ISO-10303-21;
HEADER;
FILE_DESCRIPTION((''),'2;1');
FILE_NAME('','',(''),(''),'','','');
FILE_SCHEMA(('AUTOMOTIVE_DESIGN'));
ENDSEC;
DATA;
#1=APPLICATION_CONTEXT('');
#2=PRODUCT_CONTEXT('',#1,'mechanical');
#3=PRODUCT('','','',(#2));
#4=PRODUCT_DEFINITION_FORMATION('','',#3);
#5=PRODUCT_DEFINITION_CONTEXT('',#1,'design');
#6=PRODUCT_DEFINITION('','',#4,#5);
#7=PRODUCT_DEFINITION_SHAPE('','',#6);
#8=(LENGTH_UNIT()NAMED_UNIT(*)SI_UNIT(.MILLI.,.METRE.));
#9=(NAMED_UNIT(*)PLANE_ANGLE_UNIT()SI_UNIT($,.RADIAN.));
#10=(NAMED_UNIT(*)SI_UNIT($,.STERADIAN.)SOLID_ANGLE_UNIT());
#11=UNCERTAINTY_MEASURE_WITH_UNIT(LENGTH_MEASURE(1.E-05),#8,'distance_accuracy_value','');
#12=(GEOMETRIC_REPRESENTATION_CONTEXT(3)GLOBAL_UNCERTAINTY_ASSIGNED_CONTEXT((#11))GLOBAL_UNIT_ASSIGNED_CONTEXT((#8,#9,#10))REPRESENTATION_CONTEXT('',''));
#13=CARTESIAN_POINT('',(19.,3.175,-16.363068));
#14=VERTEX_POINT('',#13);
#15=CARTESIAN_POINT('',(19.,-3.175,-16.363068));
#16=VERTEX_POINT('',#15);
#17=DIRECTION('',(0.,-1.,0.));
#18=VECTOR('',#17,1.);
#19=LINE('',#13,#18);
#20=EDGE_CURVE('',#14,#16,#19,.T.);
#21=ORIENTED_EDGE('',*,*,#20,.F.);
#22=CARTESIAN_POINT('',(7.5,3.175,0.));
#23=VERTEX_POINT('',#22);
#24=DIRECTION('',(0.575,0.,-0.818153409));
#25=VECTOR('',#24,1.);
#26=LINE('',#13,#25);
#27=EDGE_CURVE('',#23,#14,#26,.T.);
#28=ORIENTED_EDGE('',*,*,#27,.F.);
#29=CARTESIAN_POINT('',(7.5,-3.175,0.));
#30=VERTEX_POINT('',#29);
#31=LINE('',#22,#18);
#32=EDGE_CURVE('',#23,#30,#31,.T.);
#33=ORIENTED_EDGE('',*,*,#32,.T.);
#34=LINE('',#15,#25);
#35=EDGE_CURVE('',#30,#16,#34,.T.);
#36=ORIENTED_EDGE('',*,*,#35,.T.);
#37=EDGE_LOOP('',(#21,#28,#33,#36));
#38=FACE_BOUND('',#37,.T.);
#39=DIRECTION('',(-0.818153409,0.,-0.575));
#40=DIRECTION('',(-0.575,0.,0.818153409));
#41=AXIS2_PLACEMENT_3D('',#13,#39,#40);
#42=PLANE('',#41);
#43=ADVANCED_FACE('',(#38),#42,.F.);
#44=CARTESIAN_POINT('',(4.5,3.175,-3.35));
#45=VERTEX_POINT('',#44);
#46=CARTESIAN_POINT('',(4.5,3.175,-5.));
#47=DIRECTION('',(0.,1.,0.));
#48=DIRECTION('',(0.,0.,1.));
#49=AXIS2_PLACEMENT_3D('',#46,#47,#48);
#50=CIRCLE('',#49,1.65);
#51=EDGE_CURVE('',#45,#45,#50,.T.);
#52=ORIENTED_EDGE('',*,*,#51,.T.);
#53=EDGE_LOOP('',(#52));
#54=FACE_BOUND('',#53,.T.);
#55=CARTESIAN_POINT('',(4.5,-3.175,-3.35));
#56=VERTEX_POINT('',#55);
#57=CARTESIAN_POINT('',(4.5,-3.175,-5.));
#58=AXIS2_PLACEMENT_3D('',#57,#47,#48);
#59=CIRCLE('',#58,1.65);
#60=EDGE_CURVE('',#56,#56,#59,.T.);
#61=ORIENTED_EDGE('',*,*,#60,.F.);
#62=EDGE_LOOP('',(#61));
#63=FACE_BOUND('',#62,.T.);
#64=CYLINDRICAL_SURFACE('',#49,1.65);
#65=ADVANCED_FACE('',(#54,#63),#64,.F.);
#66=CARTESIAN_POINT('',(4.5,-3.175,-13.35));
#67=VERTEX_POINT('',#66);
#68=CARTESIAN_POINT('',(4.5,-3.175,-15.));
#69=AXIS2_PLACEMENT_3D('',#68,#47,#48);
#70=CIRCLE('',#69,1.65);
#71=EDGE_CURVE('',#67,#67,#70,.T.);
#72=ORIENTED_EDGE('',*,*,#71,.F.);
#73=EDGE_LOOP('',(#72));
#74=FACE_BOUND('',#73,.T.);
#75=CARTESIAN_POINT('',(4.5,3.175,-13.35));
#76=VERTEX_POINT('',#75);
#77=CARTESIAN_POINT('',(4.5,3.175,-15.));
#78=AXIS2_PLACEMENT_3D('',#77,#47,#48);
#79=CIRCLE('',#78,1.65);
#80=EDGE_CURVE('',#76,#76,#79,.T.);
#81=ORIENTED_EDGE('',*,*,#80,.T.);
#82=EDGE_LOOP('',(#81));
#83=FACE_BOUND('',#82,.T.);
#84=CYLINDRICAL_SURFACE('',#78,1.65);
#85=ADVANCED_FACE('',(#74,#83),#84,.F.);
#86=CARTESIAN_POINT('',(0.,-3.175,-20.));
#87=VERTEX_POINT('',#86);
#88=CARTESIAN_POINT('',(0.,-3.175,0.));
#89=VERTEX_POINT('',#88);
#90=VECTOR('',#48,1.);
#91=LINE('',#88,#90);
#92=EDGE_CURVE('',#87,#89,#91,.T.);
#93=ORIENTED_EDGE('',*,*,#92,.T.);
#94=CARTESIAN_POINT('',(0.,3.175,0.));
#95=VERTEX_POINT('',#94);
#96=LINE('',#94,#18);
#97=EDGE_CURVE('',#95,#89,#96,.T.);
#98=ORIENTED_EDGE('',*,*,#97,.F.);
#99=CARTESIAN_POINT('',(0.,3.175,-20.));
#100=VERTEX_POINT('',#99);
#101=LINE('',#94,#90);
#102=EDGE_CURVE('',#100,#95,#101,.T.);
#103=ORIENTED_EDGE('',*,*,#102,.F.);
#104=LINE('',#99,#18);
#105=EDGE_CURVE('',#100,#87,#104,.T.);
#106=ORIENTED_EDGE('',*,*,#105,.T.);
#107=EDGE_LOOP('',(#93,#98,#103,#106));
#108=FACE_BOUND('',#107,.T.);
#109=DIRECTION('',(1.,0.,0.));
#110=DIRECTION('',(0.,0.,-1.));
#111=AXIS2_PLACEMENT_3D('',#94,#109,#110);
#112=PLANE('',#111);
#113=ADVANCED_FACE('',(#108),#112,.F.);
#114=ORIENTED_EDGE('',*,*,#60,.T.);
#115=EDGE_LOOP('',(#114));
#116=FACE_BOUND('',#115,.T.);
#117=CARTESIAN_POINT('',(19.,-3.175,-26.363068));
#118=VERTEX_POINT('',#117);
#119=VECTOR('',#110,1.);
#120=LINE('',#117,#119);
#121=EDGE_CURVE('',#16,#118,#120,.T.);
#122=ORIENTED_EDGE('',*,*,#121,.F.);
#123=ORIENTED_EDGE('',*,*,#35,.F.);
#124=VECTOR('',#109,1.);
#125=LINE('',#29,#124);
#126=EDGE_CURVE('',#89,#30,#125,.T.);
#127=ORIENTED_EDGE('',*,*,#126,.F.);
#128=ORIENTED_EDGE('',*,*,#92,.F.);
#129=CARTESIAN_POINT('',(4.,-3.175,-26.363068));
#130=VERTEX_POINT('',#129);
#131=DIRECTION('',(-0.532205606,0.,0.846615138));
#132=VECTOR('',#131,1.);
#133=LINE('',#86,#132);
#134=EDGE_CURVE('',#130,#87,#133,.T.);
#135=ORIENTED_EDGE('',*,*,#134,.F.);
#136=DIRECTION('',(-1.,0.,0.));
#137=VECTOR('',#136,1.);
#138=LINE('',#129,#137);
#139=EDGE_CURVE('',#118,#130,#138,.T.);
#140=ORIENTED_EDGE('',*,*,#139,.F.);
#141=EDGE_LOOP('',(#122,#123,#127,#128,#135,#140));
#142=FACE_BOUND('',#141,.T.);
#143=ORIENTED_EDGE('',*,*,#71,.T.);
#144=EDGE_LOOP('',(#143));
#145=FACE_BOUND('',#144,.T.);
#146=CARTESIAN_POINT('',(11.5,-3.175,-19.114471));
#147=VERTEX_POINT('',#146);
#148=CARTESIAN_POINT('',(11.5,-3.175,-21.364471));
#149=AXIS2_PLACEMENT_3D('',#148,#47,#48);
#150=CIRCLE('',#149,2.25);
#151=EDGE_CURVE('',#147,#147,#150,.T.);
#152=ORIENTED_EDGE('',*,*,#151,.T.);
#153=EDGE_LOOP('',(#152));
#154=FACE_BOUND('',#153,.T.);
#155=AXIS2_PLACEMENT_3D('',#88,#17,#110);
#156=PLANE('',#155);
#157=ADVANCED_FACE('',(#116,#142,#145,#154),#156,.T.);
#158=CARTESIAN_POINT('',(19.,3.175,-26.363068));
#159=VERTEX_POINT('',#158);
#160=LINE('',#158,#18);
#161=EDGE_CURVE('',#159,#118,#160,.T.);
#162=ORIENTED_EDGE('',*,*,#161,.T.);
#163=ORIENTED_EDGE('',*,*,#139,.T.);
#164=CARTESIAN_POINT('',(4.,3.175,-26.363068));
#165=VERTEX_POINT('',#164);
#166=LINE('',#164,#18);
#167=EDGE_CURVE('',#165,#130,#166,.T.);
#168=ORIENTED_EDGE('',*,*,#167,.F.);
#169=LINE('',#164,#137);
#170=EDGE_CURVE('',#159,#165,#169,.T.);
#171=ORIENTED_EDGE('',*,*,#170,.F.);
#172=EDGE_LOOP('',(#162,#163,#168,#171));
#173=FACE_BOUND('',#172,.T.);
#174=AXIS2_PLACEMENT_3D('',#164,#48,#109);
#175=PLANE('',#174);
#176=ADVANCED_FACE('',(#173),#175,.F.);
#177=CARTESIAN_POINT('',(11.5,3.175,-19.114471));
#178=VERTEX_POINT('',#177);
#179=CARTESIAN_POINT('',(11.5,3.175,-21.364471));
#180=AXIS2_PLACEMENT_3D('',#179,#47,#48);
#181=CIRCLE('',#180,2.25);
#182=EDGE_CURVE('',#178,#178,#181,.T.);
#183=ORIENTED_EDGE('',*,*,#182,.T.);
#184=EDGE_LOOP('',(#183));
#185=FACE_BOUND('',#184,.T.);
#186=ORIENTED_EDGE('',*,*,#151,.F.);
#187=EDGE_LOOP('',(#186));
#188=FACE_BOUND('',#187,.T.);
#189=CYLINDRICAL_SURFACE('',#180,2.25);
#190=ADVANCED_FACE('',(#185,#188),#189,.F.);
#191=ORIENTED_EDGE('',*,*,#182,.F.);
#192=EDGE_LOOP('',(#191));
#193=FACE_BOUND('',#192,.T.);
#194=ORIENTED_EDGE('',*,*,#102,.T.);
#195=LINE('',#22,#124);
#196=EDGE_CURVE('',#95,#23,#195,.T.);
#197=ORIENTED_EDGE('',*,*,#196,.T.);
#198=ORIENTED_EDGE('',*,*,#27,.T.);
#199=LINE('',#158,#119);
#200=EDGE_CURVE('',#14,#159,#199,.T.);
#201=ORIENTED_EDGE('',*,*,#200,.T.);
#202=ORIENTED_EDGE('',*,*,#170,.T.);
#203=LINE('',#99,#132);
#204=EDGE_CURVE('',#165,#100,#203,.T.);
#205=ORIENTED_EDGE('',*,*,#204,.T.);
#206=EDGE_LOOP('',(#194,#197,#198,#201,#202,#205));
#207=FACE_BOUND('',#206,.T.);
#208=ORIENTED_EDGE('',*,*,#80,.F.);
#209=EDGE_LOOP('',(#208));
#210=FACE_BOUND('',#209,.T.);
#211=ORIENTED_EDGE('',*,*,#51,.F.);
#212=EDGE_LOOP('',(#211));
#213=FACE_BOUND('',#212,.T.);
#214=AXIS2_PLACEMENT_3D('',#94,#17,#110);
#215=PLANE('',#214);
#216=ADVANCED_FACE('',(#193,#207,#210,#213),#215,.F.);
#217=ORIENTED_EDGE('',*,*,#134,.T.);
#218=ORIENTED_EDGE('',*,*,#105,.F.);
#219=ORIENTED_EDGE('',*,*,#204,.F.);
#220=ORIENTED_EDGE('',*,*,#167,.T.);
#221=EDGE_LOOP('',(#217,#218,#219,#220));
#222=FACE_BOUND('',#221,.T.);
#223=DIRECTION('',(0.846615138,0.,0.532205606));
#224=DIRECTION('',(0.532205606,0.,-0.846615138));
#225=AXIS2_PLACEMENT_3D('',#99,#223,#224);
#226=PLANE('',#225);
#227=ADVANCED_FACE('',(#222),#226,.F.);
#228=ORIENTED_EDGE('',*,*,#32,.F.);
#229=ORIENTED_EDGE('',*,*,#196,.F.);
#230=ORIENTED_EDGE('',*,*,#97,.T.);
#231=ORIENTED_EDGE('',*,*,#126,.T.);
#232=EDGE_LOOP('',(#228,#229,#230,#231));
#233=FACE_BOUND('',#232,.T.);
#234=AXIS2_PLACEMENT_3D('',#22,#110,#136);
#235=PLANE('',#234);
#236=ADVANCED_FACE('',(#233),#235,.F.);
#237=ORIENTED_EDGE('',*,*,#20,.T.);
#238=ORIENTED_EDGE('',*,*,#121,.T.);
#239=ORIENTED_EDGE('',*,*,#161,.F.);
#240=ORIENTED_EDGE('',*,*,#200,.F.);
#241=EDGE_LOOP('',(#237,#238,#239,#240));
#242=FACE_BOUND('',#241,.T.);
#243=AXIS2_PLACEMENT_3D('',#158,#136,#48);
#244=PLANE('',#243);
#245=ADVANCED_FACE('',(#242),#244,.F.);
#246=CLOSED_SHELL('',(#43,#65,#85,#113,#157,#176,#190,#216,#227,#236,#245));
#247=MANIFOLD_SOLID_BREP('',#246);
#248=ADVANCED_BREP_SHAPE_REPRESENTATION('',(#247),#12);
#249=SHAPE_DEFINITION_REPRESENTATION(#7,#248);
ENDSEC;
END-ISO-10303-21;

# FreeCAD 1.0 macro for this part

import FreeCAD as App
import Part
import Sketcher
Q = App.Units.Quantity

doc = App.newDocument("Part")
body = doc.addObject("PartDesign::Body", "Body")

# Sketch on XZ plane
sketch1 = body.newObject("Sketcher::SketchObject", "Sketch")
sketch1.AttachmentSupport = (doc.getObject("XZ_Plane"), [""])
sketch1.MapMode = "FlatFace"
sketch1.addGeometry(Part.LineSegment(App.Vector(0, -20, 0), App.Vector(0, 0, 0)), False)
sketch1.addGeometry(Part.LineSegment(App.Vector(0, 0, 0), App.Vector(8, 0, 0)), False)
sketch1.addGeometry(Part.LineSegment(App.Vector(8, 0, 0), App.Vector(19, -16, 0)), False)
sketch1.addGeometry(Part.LineSegment(App.Vector(19, -16, 0), App.Vector(19, -26, 0)), False)
sketch1.addGeometry(Part.LineSegment(App.Vector(19, -26, 0), App.Vector(4, -26, 0)), False)
sketch1.addGeometry(Part.LineSegment(App.Vector(4, -26, 0), App.Vector(0, -20, 0)), False)
sketch1.addConstraint(Sketcher.Constraint("Coincident", 0, 2, 1, 1))
sketch1.addConstraint(Sketcher.Constraint("Coincident", 1, 2, 2, 1))
sketch1.addConstraint(Sketcher.Constraint("Coincident", 2, 2, 3, 1))
sketch1.addConstraint(Sketcher.Constraint("Coincident", 3, 2, 4, 1))
sketch1.addConstraint(Sketcher.Constraint("Coincident", 4, 2, 5, 1))
sketch1.addConstraint(Sketcher.Constraint("Coincident", 5, 2, 0, 1))
sketch1.addConstraint(Sketcher.Constraint("Vertical", 0))
sketch1.addConstraint(Sketcher.Constraint("Horizontal", 1))
sketch1.addConstraint(Sketcher.Constraint("Vertical", 3))
sketch1.addConstraint(Sketcher.Constraint("Horizontal", 4))
sketch1.addConstraint(Sketcher.Constraint("Coincident", 0, 2, -1, 1))
sketch1.addConstraint(Sketcher.Constraint("DistanceX", 4, 2, 4, 1, Q("15 mm")))
sketch1.addConstraint(Sketcher.Constraint("DistanceY", 0, 1, 0, 2, Q("20 mm")))
sketch1.addConstraint(Sketcher.Constraint("DistanceY", 3, 2, 3, 1, Q("10 mm")))
sketch1.addConstraint(Sketcher.Constraint("Distance", 2, Q("20 mm")))
sketch1.addConstraint(Sketcher.Constraint("DistanceX", 1, 1, 1, 2, Q("7.5 mm")))
sketch1.addConstraint(Sketcher.Constraint("DistanceX", -1, 1, 2, 2, Q("19 mm")))
pad1 = body.newObject("PartDesign::Pad", "Pad")
pad1.Profile = sketch1
pad1.Length = 6.35
pad1.Midplane = True

# Sketch on XZ plane
sketch2 = body.newObject("Sketcher::SketchObject", "Sketch001")
sketch2.AttachmentSupport = (doc.getObject("XZ_Plane"), [""])
sketch2.MapMode = "FlatFace"
sketch2.AttachmentOffset = App.Placement(App.Vector(0, 0, -3.175), App.Rotation())
sketch2.addGeometry(Part.Circle(App.Vector(4.5, -15, 0), App.Vector(0, 0, 1), 1.6), False)
sketch2.addGeometry(Part.Circle(App.Vector(4.5, -5, 0), App.Vector(0, 0, 1), 1.6), False)
sketch2.addConstraint(Sketcher.Constraint("Equal", 0, 1))
sketch2.addConstraint(Sketcher.Constraint("Vertical", 0, 3, 1, 3))
sketch2.addConstraint(Sketcher.Constraint("Diameter", 0, Q("3.3 mm")))
sketch2.addConstraint(Sketcher.Constraint("DistanceY", 0, 3, -1, 1, Q("15 mm")))
sketch2.addConstraint(Sketcher.Constraint("DistanceY", 1, 3, -1, 1, Q("5 mm")))
sketch2.addConstraint(Sketcher.Constraint("DistanceX", -1, 1, 0, 3, Q("4.5 mm")))
doc.recompute()
hole = body.newObject("PartDesign::Hole", "Hole")
hole.Profile = sketch2
hole.ThreadType = "None"
hole.Diameter = 3.3
hole.DepthType = "ThroughAll"
hole.Reversed = True

# Sketch on XZ plane
sketch3 = body.newObject("Sketcher::SketchObject", "Sketch002")
sketch3.AttachmentSupport = (doc.getObject("XZ_Plane"), [""])
sketch3.MapMode = "FlatFace"
sketch3.AttachmentOffset = App.Placement(App.Vector(0, 0, -3.175), App.Rotation())
sketch3.addGeometry(Part.Circle(App.Vector(11.5, -21.4, 0), App.Vector(0, 0, 1), 2.2), False)
sketch3.addConstraint(Sketcher.Constraint("Diameter", 0, Q("4.5 mm")))
sketch3.addConstraint(Sketcher.Constraint("DistanceX", -1, 1, 0, 3, Q("11.5 mm")))
sketch3.addConstraint(Sketcher.Constraint("DistanceY", 0, 3, -1, 1, Q("21.364471 mm")))
doc.recompute()
hole2 = body.newObject("PartDesign::Hole", "Hole001")
hole2.Profile = sketch3
hole2.ThreadType = "None"
hole2.Diameter = 4.5
hole2.DepthType = "ThroughAll"
hole2.Reversed = True

doc.recompute()
